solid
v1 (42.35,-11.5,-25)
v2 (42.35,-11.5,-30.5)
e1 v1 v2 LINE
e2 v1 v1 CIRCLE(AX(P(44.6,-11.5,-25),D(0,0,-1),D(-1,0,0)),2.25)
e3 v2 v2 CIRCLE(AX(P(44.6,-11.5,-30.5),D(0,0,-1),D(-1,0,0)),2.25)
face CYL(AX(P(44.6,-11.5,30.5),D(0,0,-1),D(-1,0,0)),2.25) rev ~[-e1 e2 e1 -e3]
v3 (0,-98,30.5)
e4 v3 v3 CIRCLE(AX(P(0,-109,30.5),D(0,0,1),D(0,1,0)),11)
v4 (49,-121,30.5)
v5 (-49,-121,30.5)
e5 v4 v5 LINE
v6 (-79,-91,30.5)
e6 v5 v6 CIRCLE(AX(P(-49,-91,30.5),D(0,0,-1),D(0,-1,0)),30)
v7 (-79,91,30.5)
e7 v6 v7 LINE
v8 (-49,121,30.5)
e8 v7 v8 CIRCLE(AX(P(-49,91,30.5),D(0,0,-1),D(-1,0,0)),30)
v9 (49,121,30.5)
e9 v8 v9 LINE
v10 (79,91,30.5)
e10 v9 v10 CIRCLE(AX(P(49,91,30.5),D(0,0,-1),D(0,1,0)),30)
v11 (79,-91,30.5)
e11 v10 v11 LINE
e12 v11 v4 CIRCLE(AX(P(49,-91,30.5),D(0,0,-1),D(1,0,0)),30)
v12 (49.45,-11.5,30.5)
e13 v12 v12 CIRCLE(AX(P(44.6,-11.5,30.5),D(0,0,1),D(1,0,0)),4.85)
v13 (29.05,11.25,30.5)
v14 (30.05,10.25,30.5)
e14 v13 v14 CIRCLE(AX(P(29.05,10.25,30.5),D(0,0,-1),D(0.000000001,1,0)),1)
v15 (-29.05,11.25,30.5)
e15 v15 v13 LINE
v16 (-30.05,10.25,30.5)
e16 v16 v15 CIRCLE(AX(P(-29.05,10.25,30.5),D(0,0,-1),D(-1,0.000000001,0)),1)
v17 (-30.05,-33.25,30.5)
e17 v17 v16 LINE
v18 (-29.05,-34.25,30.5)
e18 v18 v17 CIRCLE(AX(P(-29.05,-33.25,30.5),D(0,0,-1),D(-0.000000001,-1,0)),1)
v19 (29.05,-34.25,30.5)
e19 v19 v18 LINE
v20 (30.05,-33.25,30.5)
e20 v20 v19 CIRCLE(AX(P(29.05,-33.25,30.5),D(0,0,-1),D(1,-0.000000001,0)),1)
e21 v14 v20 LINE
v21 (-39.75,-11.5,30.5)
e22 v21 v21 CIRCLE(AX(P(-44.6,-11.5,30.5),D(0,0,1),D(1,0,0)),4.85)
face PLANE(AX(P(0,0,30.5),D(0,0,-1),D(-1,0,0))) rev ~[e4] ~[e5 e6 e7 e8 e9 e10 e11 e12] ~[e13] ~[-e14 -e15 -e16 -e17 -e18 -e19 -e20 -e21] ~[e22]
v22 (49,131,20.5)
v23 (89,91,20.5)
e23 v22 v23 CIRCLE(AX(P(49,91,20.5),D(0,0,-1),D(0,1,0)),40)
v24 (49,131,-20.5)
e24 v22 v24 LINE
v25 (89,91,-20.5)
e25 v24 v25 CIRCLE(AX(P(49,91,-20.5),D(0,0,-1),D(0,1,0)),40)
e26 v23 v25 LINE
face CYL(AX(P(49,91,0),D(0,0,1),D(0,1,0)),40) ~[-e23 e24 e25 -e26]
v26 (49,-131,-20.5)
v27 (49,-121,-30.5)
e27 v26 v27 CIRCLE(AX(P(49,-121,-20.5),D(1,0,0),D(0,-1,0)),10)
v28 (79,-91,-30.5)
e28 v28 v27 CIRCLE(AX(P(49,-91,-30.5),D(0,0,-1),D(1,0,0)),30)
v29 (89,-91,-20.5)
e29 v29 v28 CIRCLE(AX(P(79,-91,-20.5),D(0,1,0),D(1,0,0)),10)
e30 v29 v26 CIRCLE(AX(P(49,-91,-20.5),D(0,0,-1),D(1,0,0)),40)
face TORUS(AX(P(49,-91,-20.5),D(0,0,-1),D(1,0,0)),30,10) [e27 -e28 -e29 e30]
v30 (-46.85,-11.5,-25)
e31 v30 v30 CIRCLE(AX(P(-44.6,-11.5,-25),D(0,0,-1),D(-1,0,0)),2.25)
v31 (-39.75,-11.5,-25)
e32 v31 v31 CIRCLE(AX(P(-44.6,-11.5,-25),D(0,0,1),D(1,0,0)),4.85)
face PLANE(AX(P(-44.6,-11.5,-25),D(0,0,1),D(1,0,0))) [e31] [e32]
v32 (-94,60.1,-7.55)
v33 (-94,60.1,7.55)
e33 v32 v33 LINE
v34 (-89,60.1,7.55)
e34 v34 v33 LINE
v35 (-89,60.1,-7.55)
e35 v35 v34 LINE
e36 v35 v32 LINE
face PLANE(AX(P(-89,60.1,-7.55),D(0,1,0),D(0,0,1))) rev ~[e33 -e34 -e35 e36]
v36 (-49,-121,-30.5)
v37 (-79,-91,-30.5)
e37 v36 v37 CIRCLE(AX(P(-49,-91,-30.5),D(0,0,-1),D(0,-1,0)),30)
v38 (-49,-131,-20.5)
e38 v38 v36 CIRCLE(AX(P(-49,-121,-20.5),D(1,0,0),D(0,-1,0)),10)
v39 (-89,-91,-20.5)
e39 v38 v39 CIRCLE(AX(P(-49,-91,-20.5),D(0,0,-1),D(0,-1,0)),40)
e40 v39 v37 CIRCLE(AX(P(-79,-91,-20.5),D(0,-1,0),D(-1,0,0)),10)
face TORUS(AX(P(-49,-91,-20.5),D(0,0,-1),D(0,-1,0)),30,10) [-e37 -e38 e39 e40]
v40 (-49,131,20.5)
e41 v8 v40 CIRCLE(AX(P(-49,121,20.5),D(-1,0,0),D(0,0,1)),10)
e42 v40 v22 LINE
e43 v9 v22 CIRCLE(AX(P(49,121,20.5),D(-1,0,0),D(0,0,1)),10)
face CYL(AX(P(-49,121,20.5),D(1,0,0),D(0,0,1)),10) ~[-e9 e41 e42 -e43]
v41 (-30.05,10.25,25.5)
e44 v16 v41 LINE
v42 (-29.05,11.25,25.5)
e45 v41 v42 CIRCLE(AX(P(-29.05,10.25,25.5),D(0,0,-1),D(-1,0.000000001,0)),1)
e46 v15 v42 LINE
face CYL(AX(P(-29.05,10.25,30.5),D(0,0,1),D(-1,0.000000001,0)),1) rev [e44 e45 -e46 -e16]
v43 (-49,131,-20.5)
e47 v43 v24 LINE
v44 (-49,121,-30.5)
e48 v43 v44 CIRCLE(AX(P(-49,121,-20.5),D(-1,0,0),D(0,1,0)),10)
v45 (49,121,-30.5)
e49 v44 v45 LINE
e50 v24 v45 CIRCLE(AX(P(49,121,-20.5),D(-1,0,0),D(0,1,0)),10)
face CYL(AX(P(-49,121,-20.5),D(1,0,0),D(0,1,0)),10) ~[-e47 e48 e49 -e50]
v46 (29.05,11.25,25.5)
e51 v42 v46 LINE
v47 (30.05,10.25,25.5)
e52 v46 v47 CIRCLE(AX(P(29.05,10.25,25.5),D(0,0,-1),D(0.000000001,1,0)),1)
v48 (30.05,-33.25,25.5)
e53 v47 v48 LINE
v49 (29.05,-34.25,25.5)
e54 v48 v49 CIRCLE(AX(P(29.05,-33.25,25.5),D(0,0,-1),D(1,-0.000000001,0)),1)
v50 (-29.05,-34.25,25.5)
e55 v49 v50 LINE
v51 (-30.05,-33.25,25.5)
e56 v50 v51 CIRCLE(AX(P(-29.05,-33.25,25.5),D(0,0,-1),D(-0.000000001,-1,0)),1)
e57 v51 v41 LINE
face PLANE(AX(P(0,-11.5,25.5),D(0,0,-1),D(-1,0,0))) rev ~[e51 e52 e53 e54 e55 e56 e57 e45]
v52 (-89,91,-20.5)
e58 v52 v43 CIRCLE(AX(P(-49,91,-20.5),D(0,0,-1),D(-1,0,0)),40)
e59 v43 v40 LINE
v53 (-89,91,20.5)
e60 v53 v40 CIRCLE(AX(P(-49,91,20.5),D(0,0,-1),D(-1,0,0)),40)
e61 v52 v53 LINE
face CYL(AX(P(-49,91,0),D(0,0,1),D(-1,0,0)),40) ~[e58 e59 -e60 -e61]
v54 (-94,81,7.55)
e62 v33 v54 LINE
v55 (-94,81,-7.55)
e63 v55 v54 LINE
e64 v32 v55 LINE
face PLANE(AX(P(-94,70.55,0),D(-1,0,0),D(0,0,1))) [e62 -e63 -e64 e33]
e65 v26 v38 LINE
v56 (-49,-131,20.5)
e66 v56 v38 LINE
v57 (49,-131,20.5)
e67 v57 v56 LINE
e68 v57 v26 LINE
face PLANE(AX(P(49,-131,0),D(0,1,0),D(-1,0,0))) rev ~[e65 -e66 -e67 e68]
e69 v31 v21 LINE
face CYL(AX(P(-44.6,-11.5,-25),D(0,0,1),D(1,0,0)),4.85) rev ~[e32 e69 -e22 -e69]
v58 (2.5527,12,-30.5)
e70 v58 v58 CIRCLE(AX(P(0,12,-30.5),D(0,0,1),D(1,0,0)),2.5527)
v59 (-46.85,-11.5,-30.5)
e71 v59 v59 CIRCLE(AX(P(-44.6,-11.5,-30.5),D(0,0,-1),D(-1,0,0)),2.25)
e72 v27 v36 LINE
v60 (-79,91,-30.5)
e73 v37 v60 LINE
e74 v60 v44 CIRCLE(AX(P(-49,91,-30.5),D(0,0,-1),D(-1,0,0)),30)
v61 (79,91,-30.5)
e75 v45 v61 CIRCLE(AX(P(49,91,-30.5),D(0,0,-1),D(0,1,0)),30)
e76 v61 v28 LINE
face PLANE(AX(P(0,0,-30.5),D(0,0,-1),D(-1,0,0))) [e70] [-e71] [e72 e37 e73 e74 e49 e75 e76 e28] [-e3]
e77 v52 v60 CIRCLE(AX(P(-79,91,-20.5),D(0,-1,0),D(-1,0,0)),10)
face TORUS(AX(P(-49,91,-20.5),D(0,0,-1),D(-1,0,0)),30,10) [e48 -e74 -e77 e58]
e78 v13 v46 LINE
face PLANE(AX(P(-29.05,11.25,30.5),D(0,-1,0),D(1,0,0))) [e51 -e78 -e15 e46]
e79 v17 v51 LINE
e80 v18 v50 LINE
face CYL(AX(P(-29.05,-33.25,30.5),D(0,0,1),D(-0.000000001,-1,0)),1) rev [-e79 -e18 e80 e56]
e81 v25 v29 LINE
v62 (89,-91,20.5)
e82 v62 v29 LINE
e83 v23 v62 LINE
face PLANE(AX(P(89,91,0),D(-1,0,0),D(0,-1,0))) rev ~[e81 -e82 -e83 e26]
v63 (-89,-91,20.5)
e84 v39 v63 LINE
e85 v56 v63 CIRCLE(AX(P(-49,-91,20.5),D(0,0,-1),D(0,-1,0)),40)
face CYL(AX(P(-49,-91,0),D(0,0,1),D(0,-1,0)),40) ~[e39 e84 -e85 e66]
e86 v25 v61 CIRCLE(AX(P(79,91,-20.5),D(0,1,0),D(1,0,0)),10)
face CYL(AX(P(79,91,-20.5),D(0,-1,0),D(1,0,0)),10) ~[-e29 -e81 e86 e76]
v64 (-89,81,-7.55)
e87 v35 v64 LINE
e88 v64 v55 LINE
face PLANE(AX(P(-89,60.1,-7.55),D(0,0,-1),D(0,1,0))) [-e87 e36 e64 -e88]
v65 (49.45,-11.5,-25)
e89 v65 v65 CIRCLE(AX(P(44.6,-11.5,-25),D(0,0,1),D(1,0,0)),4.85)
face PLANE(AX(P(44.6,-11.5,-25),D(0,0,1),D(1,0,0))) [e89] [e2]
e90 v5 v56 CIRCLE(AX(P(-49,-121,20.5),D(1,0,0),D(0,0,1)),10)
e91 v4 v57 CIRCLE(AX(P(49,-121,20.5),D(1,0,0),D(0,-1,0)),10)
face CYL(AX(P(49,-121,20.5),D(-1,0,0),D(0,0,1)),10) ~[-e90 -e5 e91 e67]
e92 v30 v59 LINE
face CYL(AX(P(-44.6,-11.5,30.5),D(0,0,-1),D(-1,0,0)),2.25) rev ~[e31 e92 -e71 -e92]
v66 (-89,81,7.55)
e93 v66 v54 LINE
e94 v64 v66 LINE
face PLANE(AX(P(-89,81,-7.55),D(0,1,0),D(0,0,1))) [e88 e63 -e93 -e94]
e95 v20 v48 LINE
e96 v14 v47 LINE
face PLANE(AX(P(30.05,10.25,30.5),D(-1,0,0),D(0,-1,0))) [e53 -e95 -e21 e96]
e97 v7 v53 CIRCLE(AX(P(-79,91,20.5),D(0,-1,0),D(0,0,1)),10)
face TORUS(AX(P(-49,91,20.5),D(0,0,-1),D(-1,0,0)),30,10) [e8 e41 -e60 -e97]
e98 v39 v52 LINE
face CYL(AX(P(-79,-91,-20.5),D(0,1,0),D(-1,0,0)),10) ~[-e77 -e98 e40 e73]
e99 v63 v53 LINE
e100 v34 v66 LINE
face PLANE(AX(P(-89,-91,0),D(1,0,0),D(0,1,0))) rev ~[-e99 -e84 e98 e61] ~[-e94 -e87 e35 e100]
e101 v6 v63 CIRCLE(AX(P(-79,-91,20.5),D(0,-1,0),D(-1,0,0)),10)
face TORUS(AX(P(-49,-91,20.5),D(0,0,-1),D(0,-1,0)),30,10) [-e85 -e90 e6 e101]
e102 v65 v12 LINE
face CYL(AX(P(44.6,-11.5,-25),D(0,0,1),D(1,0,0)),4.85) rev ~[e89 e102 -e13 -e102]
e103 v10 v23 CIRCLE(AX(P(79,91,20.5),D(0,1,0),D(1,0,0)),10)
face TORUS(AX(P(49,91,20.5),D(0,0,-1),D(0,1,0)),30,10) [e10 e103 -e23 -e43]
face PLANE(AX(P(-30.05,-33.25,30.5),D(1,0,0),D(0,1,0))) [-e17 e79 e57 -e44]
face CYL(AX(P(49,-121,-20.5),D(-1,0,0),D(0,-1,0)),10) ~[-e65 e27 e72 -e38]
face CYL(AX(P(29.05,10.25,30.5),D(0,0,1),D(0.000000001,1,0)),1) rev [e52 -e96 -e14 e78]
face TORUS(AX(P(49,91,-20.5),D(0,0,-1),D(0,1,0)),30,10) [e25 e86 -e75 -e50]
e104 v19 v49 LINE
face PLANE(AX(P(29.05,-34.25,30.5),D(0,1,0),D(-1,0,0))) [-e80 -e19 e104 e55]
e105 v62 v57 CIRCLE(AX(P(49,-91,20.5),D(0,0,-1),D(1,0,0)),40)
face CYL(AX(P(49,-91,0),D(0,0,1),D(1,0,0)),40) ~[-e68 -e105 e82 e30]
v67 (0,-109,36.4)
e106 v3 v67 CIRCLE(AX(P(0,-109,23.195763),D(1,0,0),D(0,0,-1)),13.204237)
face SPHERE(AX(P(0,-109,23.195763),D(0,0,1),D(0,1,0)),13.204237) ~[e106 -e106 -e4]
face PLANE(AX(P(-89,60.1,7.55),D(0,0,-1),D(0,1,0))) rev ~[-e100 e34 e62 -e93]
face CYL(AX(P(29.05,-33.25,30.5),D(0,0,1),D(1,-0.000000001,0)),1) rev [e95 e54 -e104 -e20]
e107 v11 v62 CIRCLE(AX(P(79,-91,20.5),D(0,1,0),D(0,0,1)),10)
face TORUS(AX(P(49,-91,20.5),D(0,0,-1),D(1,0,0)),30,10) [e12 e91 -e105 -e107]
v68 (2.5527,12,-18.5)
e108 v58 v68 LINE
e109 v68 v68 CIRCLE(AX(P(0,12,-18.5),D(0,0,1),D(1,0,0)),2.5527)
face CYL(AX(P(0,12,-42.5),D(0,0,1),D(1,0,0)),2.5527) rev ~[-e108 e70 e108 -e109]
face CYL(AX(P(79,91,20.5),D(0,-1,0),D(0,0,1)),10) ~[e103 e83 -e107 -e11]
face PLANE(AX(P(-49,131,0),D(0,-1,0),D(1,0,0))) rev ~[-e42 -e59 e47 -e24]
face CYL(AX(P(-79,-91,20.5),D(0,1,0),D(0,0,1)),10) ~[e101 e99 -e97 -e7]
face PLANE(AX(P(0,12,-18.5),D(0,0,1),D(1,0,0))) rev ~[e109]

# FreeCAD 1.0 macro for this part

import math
import FreeCAD as App
import Part
import Sketcher
from FreeCAD import Vector
Q = App.Units.Quantity


def edges_at(feature, points):
    """Names of the edges that pass closest to the given points."""
    edges = feature.Shape.Edges
    near = lambda p: min(range(len(edges)), key=lambda i: edges[i].distToShape(Part.Vertex(*p))[0])
    return sorted({f"Edge{near(p) + 1}" for p in points})


def add_polygon(sketch, points):
    """Adds a closed chain of lines whose ends are joined by coincident constraints."""
    first, n = sketch.GeometryCount, len(points)
    for a, b in zip(points, points[1:] + points[:1]):
        sketch.addGeometry(Part.LineSegment(App.Vector(*a, 0), App.Vector(*b, 0)), False)
    for i in range(n):
        sketch.addConstraint(Sketcher.Constraint("Coincident", first + i, 2, first + (i + 1) % n, 1))

doc = App.newDocument("Part")
body = doc.addObject("PartDesign::Body", "Body")

# Sketch on XY plane
sketch1 = body.newObject("Sketcher::SketchObject", "Sketch")
sketch1.AttachmentSupport = (doc.getObject("XY_Plane"), [""])
sketch1.MapMode = "FlatFace"
sketch1.addGeometry([
    Part.LineSegment(Vector(49, 131, 0), Vector(-49, 131, 0)),  # 0
    Part.ArcOfCircle(Part.Circle(Vector(-49, 91, 0), Vector(0, 0, 1), 40), math.radians(90), math.radians(180)),  # 1
    Part.LineSegment(Vector(-89, 91, 0), Vector(-89, -91, 0)),  # 2
    Part.ArcOfCircle(Part.Circle(Vector(-49, -91, 0), Vector(0, 0, 1), 40), math.radians(-180), math.radians(-90)),  # 3
    Part.LineSegment(Vector(-49, -131, 0), Vector(49, -131, 0)),  # 4
    Part.ArcOfCircle(Part.Circle(Vector(49, -91, 0), Vector(0, 0, 1), 40), math.radians(-90), math.radians(0)),  # 5
    Part.LineSegment(Vector(89, -91, 0), Vector(89, 91, 0)),  # 6
    Part.ArcOfCircle(Part.Circle(Vector(49, 91, 0), Vector(0, 0, 1), 40), math.radians(0), math.radians(90)),  # 7
], False)
sketch1.addConstraint([
    Sketcher.Constraint("Tangent", 0, 2, 1, 1),
    Sketcher.Constraint("Tangent", 1, 2, 2, 1),
    Sketcher.Constraint("Tangent", 2, 2, 3, 1),
    Sketcher.Constraint("Tangent", 3, 2, 4, 1),
    Sketcher.Constraint("Tangent", 4, 2, 5, 1),
    Sketcher.Constraint("Tangent", 5, 2, 6, 1),
    Sketcher.Constraint("Tangent", 6, 2, 7, 1),
    Sketcher.Constraint("Tangent", 7, 2, 0, 1),
    Sketcher.Constraint("Horizontal", 0),
    Sketcher.Constraint("Vertical", 2),
    Sketcher.Constraint("Horizontal", 4),
    Sketcher.Constraint("Vertical", 6),
    Sketcher.Constraint("Equal", 1, 3),
    Sketcher.Constraint("Equal", 3, 5),
    Sketcher.Constraint("Equal", 5, 7),
    Sketcher.Constraint("Symmetric", 1, 3, 5, 3, -1, 1),
    Sketcher.Constraint("Radius", 1, Q("40 mm")),
    Sketcher.Constraint("DistanceX", 0, 2, 0, 1, Q("98 mm")),
    Sketcher.Constraint("DistanceY", 2, 2, 2, 1, Q("182 mm")),
])
pad1 = body.newObject("PartDesign::Pad", "Pad")
pad1.Profile = sketch1
pad1.Length = 61
pad1.Midplane = True

# Sketch on XY plane
sketch2 = body.newObject("Sketcher::SketchObject", "Sketch001")
sketch2.AttachmentSupport = (doc.getObject("XY_Plane"), [""])
sketch2.MapMode = "FlatFace"
sketch2.AttachmentOffset = App.Placement(Vector(0, 0, 30.5), App.Rotation())
sketch2.addGeometry([
    Part.LineSegment(Vector(29.1, 11.2, 0), Vector(-29.1, 11.2, 0)),  # 0
    Part.ArcOfCircle(Part.Circle(Vector(-29, 10.2, 0), Vector(0, 0, 1), 1), math.radians(90), math.radians(180)),  # 1
    Part.LineSegment(Vector(-30.1, 10.2, 0), Vector(-30.1, -33.2, 0)),  # 2
    Part.ArcOfCircle(Part.Circle(Vector(-29, -33.2, 0), Vector(0, 0, 1), 1), math.radians(-180), math.radians(-90)),  # 3
    Part.LineSegment(Vector(-29.1, -34.2, 0), Vector(29.1, -34.2, 0)),  # 4
    Part.ArcOfCircle(Part.Circle(Vector(29, -33.2, 0), Vector(0, 0, 1), 1), math.radians(-90), math.radians(0)),  # 5
    Part.LineSegment(Vector(30.1, -33.2, 0), Vector(30.1, 10.2, 0)),  # 6
    Part.ArcOfCircle(Part.Circle(Vector(29, 10.2, 0), Vector(0, 0, 1), 1), math.radians(0), math.radians(90)),  # 7
], False)
sketch2.addConstraint([
    Sketcher.Constraint("Tangent", 0, 2, 1, 1),
    Sketcher.Constraint("Tangent", 1, 2, 2, 1),
    Sketcher.Constraint("Tangent", 2, 2, 3, 1),
    Sketcher.Constraint("Tangent", 3, 2, 4, 1),
    Sketcher.Constraint("Tangent", 4, 2, 5, 1),
    Sketcher.Constraint("Tangent", 5, 2, 6, 1),
    Sketcher.Constraint("Tangent", 6, 2, 7, 1),
    Sketcher.Constraint("Tangent", 7, 2, 0, 1),
    Sketcher.Constraint("Horizontal", 0),
    Sketcher.Constraint("Vertical", 2),
    Sketcher.Constraint("Horizontal", 4),
    Sketcher.Constraint("Vertical", 6),
    Sketcher.Constraint("Equal", 1, 3),
    Sketcher.Constraint("Equal", 3, 5),
    Sketcher.Constraint("Equal", 5, 7),
    Sketcher.Constraint("Radius", 1, Q("1 mm")),
    Sketcher.Constraint("DistanceX", 0, 2, 0, 1, Q("58.1 mm")),
    Sketcher.Constraint("DistanceY", 2, 2, 2, 1, Q("43.5 mm")),
    Sketcher.Constraint("DistanceX", 1, 3, -1, 1, Q("29.05 mm")),
    Sketcher.Constraint("DistanceY", -1, 1, 1, 3, Q("10.25 mm")),
])
pocket1 = body.newObject("PartDesign::Pocket", "Pocket")
pocket1.Profile = sketch2
pocket1.Length = 5

# Sketch on XY plane
sketch3 = body.newObject("Sketcher::SketchObject", "Sketch002")
sketch3.AttachmentSupport = (doc.getObject("XY_Plane"), [""])
sketch3.MapMode = "FlatFace"
sketch3.AttachmentOffset = App.Placement(Vector(0, 0, 30.5), App.Rotation())
sketch3.addGeometry([
    Part.Circle(Vector(-44.6, -11.5, 0), Vector(0, 0, 1), 2.2),
    Part.Circle(Vector(44.6, -11.5, 0), Vector(0, 0, 1), 2.2),
], False)
sketch3.addConstraint([
    Sketcher.Constraint("Equal", 0, 1),
    Sketcher.Constraint("Symmetric", 0, 3, 1, 3, -2),
    Sketcher.Constraint("Diameter", 0, Q("4.5 mm")),
    Sketcher.Constraint("DistanceX", 0, 3, -1, 1, Q("44.6 mm")),
    Sketcher.Constraint("DistanceY", 0, 3, -1, 1, Q("11.5 mm")),
])
doc.recompute()
hole = body.newObject("PartDesign::Hole", "Hole")
hole.Profile = sketch3
hole.ThreadType = "None"
hole.Diameter = 4.5
hole.DepthType = "ThroughAll"
hole.HoleCutType = "Counterbore"
hole.HoleCutDiameter = 9.7
hole.HoleCutDepth = 55.5

# Sketch on XY plane
sketch4 = body.newObject("Sketcher::SketchObject", "Sketch003")
sketch4.AttachmentSupport = (doc.getObject("XY_Plane"), [""])
sketch4.MapMode = "FlatFace"
sketch4.AttachmentOffset = App.Placement(Vector(0, 0, -30.5), App.Rotation())
sketch4.addGeometry(Part.Circle(Vector(0, 12, 0), Vector(0, 0, 1), 2.6), False)
sketch4.addConstraint([
    Sketcher.Constraint("PointOnObject", 0, 3, -2),
    Sketcher.Constraint("DistanceY", -1, 1, 0, 3, Q("12 mm")),
    Sketcher.Constraint("Diameter", 0, Q("5.1054 mm")),
])
doc.recompute()
hole2 = body.newObject("PartDesign::Hole", "Hole001")
hole2.Profile = sketch4
hole2.ThreadType = "None"
hole2.Diameter = 5.1054
hole2.DepthType = "Dimension"
hole2.Depth = 12
hole2.DrillPoint = "Flat"
hole2.Reversed = True

# Sketch on YZ plane
sketch5 = body.newObject("Sketcher::SketchObject", "Sketch004")
sketch5.AttachmentSupport = (doc.getObject("YZ_Plane"), [""])
sketch5.MapMode = "FlatFace"
sketch5.addGeometry([
    Part.LineSegment(Vector(-109, 36, 0), Vector(-109, 10, 0)),
    Part.ArcOfCircle(Part.Circle(Vector(-109, 23, 0), Vector(0, 0, 1), 13), math.radians(-90), math.radians(90)),
], False)
sketch5.addGeometry(Part.LineSegment(Vector(-109, 36, 0), Vector(-109, 10, 0)), True)  # axis
sketch5.addConstraint([
    Sketcher.Constraint("Coincident", 0, 1, 1, 2),
    Sketcher.Constraint("Coincident", 1, 1, 0, 2),
    Sketcher.Constraint("Vertical", 0),
    Sketcher.Constraint("Vertical", 2),
    Sketcher.Constraint("Coincident", 2, 1, 0, 1),
    Sketcher.Constraint("Vertical", 1, 3, 0, 1),
    Sketcher.Constraint("Equal", 0, 2),
    Sketcher.Constraint("DistanceX", 1, 3, -1, 1, Q("109 mm")),
    Sketcher.Constraint("DistanceY", -1, 1, 0, 1, Q("36.4 mm")),
    Sketcher.Constraint("Radius", 1, Q("13.204237 mm")),
])
revolution = body.newObject("PartDesign::Revolution", "Revolution")
revolution.Profile = sketch5
revolution.ReferenceAxis = (sketch5, ["Axis0"])
revolution.Angle = 360
doc.recompute()

fillet = body.newObject("PartDesign::Fillet", "Fillet")
fillet.Base = (revolution, edges_at(revolution, [
    (77.284, 119.284, -30.5),
    (0, 131, 30.5),
    (89, 0, -30.5),
    (77.284, -119.284, -30.5),
    (0, -131, -30.5),
    (-77.284, -119.284, -30.5),
    (-89, 0, -30.5),
    (-77.284, 119.284, -30.5),
    (0, 131, -30.5),
    (-77.284, 119.284, 30.5),
    (-89, 0, 30.5),
    (-77.284, -119.284, 30.5),
    (0, -131, 30.5),
    (77.284, -119.284, 30.5),
    (89, 0, 30.5),
    (77.284, 119.284, 30.5),
]))
fillet.Radius = 10

# Sketch on YZ plane
sketch6 = body.newObject("Sketcher::SketchObject", "Sketch005")
sketch6.AttachmentSupport = (doc.getObject("YZ_Plane"), [""])
sketch6.MapMode = "FlatFace"
sketch6.AttachmentOffset = App.Placement(Vector(0, 0, -89), App.Rotation())
add_polygon(sketch6, [(81, -8), (60, -8), (60, 8), (81, 8)])  # lines 0-3
sketch6.addConstraint([
    Sketcher.Constraint("Horizontal", 0),
    Sketcher.Constraint("Vertical", 1),
    Sketcher.Constraint("Horizontal", 2),
    Sketcher.Constraint("Vertical", 3),
    Sketcher.Constraint("DistanceX", 0, 2, 0, 1, Q("20.9 mm")),
    Sketcher.Constraint("DistanceY", 1, 1, 1, 2, Q("15.1 mm")),
    Sketcher.Constraint("DistanceX", -1, 1, 2, 2, Q("81 mm")),
    Sketcher.Constraint("DistanceY", 0, 2, -1, 1, Q("7.55 mm")),
])
pad2 = body.newObject("PartDesign::Pad", "Pad001")
pad2.Profile = sketch6
pad2.Length = 5
pad2.Reversed = True

doc.recompute()
